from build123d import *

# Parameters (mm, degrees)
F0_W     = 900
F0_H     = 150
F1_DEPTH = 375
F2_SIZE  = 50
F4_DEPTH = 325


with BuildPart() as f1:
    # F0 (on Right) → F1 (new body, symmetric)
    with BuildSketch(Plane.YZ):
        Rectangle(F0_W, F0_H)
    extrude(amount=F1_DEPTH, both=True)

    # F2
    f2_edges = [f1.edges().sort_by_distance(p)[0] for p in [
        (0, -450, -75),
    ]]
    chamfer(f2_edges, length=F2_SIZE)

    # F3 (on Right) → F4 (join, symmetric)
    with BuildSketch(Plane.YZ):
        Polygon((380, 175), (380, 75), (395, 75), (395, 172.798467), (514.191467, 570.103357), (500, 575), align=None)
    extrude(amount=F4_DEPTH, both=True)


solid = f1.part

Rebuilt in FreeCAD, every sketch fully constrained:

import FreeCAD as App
import Part
import Sketcher
from FreeCAD import Vector


def edges_at(feature, points):
    """Names of the edges that pass closest to the given points."""
    edges = feature.Shape.Edges
    near = lambda p: min(range(len(edges)), key=lambda i: edges[i].distToShape(Part.Vertex(*p))[0])
    return sorted({f"Edge{near(p) + 1}" for p in points})

doc = App.newDocument("Part")
params = doc.addObject("Spreadsheet::Sheet", "Params")
for row, (alias, value) in enumerate([
    ("sketch1_width", "900 mm"),
    ("sketch1_height", "150 mm"),
    ("pad1_length", "750 mm"),
    ("chamfer_size", "50 mm"),
    ("sketch2_width", "15 mm"),
    ("sketch2_height", "100 mm"),
    ("pad2_length", "650 mm"),
], start=1):
    params.set(f"A{row}", alias)
    params.set(f"B{row}", "=" + value)
    params.setAlias(f"B{row}", alias)

body = doc.addObject("PartDesign::Body", "Body")

# Sketch on YZ plane
sketch1 = body.newObject("Sketcher::SketchObject", "Sketch")
sketch1.AttachmentSupport = (doc.getObject("YZ_Plane"), [""])
sketch1.MapMode = "FlatFace"
sketch1.addGeometry(Part.LineSegment(Vector(-450, 75, 0), Vector(-450, -75, 0)), False)
sketch1.addGeometry(Part.LineSegment(Vector(-450, -75, 0), Vector(450, -75, 0)), False)
sketch1.addGeometry(Part.LineSegment(Vector(450, -75, 0), Vector(450, 75, 0)), False)
sketch1.addGeometry(Part.LineSegment(Vector(450, 75, 0), Vector(-450, 75, 0)), False)
sketch1.addConstraint(Sketcher.Constraint("Coincident", 0, 2, 1, 1))
sketch1.addConstraint(Sketcher.Constraint("Coincident", 1, 2, 2, 1))
sketch1.addConstraint(Sketcher.Constraint("Coincident", 2, 2, 3, 1))
sketch1.addConstraint(Sketcher.Constraint("Coincident", 3, 2, 0, 1))
sketch1.addConstraint(Sketcher.Constraint("Vertical", 0))
sketch1.addConstraint(Sketcher.Constraint("Horizontal", 1))
sketch1.addConstraint(Sketcher.Constraint("Vertical", 2))
sketch1.addConstraint(Sketcher.Constraint("Horizontal", 3))
sketch1.addConstraint(Sketcher.Constraint("Symmetric", 0, 2, 2, 2, -1, 1))
sketch1.addConstraint(Sketcher.Constraint("DistanceX", 1, 1, 1, 2, 900.0))
sketch1.addConstraint(Sketcher.Constraint("DistanceY", 0, 2, 0, 1, 150.0))
sketch1.setExpression("Constraints[9]", "Params.sketch1_width")
sketch1.setExpression("Constraints[10]", "Params.sketch1_height")
pad1 = body.newObject("PartDesign::Pad", "Pad")
pad1.Profile = sketch1
pad1.setExpression("Length", "Params.pad1_length")
pad1.Midplane = True
doc.recompute()

chamfer = body.newObject("PartDesign::Chamfer", "Chamfer")
chamfer.Base = (pad1, edges_at(pad1, [(0, -450, -75)]))
chamfer.setExpression("Size", "Params.chamfer_size")

# Sketch on YZ plane
sketch2 = body.newObject("Sketcher::SketchObject", "Sketch001")
sketch2.AttachmentSupport = (doc.getObject("YZ_Plane"), [""])
sketch2.MapMode = "FlatFace"
sketch2.addGeometry(Part.LineSegment(Vector(380, 175, 0), Vector(380, 75, 0)), False)
sketch2.addGeometry(Part.LineSegment(Vector(380, 75, 0), Vector(395, 75, 0)), False)
sketch2.addGeometry(Part.LineSegment(Vector(395, 75, 0), Vector(395, 173, 0)), False)
sketch2.addGeometry(Part.LineSegment(Vector(395, 173, 0), Vector(514, 570, 0)), False)
sketch2.addGeometry(Part.LineSegment(Vector(514, 570, 0), Vector(500, 575, 0)), False)
sketch2.addGeometry(Part.LineSegment(Vector(500, 575, 0), Vector(380, 175, 0)), False)
sketch2.addConstraint(Sketcher.Constraint("Coincident", 0, 2, 1, 1))
sketch2.addConstraint(Sketcher.Constraint("Coincident", 1, 2, 2, 1))
sketch2.addConstraint(Sketcher.Constraint("Coincident", 2, 2, 3, 1))
sketch2.addConstraint(Sketcher.Constraint("Coincident", 3, 2, 4, 1))
sketch2.addConstraint(Sketcher.Constraint("Coincident", 4, 2, 5, 1))
sketch2.addConstraint(Sketcher.Constraint("Coincident", 5, 2, 0, 1))
sketch2.addConstraint(Sketcher.Constraint("Vertical", 0))
sketch2.addConstraint(Sketcher.Constraint("Horizontal", 1))
sketch2.addConstraint(Sketcher.Constraint("Vertical", 2))
sketch2.addConstraint(Sketcher.Constraint("Parallel", 3, 5))
sketch2.addConstraint(Sketcher.Constraint("DistanceX", 1, 1, 1, 2, 15.0))
sketch2.addConstraint(Sketcher.Constraint("DistanceY", 0, 2, 0, 1, 100.0))
sketch2.addConstraint(Sketcher.Constraint("DistanceX", -1, 1, 0, 2, 380.0))
sketch2.addConstraint(Sketcher.Constraint("DistanceY", -1, 1, 0, 2, 75.0))
sketch2.addConstraint(Sketcher.Constraint("DistanceX", -1, 1, 4, 2, 500.0))
sketch2.addConstraint(Sketcher.Constraint("DistanceY", -1, 1, 4, 2, 575.0))
sketch2.addConstraint(Sketcher.Constraint("Distance", 4, 15.01249))
sketch2.addConstraint(Sketcher.Constraint("DistanceY", 2, 1, 2, 2, 97.798467))
sketch2.setExpression("Constraints[10]", "Params.sketch2_width")
sketch2.setExpression("Constraints[11]", "Params.sketch2_height")
pad2 = body.newObject("PartDesign::Pad", "Pad001")
pad2.Profile = sketch2
pad2.setExpression("Length", "Params.pad2_length")
pad2.Midplane = True

doc.recompute()
